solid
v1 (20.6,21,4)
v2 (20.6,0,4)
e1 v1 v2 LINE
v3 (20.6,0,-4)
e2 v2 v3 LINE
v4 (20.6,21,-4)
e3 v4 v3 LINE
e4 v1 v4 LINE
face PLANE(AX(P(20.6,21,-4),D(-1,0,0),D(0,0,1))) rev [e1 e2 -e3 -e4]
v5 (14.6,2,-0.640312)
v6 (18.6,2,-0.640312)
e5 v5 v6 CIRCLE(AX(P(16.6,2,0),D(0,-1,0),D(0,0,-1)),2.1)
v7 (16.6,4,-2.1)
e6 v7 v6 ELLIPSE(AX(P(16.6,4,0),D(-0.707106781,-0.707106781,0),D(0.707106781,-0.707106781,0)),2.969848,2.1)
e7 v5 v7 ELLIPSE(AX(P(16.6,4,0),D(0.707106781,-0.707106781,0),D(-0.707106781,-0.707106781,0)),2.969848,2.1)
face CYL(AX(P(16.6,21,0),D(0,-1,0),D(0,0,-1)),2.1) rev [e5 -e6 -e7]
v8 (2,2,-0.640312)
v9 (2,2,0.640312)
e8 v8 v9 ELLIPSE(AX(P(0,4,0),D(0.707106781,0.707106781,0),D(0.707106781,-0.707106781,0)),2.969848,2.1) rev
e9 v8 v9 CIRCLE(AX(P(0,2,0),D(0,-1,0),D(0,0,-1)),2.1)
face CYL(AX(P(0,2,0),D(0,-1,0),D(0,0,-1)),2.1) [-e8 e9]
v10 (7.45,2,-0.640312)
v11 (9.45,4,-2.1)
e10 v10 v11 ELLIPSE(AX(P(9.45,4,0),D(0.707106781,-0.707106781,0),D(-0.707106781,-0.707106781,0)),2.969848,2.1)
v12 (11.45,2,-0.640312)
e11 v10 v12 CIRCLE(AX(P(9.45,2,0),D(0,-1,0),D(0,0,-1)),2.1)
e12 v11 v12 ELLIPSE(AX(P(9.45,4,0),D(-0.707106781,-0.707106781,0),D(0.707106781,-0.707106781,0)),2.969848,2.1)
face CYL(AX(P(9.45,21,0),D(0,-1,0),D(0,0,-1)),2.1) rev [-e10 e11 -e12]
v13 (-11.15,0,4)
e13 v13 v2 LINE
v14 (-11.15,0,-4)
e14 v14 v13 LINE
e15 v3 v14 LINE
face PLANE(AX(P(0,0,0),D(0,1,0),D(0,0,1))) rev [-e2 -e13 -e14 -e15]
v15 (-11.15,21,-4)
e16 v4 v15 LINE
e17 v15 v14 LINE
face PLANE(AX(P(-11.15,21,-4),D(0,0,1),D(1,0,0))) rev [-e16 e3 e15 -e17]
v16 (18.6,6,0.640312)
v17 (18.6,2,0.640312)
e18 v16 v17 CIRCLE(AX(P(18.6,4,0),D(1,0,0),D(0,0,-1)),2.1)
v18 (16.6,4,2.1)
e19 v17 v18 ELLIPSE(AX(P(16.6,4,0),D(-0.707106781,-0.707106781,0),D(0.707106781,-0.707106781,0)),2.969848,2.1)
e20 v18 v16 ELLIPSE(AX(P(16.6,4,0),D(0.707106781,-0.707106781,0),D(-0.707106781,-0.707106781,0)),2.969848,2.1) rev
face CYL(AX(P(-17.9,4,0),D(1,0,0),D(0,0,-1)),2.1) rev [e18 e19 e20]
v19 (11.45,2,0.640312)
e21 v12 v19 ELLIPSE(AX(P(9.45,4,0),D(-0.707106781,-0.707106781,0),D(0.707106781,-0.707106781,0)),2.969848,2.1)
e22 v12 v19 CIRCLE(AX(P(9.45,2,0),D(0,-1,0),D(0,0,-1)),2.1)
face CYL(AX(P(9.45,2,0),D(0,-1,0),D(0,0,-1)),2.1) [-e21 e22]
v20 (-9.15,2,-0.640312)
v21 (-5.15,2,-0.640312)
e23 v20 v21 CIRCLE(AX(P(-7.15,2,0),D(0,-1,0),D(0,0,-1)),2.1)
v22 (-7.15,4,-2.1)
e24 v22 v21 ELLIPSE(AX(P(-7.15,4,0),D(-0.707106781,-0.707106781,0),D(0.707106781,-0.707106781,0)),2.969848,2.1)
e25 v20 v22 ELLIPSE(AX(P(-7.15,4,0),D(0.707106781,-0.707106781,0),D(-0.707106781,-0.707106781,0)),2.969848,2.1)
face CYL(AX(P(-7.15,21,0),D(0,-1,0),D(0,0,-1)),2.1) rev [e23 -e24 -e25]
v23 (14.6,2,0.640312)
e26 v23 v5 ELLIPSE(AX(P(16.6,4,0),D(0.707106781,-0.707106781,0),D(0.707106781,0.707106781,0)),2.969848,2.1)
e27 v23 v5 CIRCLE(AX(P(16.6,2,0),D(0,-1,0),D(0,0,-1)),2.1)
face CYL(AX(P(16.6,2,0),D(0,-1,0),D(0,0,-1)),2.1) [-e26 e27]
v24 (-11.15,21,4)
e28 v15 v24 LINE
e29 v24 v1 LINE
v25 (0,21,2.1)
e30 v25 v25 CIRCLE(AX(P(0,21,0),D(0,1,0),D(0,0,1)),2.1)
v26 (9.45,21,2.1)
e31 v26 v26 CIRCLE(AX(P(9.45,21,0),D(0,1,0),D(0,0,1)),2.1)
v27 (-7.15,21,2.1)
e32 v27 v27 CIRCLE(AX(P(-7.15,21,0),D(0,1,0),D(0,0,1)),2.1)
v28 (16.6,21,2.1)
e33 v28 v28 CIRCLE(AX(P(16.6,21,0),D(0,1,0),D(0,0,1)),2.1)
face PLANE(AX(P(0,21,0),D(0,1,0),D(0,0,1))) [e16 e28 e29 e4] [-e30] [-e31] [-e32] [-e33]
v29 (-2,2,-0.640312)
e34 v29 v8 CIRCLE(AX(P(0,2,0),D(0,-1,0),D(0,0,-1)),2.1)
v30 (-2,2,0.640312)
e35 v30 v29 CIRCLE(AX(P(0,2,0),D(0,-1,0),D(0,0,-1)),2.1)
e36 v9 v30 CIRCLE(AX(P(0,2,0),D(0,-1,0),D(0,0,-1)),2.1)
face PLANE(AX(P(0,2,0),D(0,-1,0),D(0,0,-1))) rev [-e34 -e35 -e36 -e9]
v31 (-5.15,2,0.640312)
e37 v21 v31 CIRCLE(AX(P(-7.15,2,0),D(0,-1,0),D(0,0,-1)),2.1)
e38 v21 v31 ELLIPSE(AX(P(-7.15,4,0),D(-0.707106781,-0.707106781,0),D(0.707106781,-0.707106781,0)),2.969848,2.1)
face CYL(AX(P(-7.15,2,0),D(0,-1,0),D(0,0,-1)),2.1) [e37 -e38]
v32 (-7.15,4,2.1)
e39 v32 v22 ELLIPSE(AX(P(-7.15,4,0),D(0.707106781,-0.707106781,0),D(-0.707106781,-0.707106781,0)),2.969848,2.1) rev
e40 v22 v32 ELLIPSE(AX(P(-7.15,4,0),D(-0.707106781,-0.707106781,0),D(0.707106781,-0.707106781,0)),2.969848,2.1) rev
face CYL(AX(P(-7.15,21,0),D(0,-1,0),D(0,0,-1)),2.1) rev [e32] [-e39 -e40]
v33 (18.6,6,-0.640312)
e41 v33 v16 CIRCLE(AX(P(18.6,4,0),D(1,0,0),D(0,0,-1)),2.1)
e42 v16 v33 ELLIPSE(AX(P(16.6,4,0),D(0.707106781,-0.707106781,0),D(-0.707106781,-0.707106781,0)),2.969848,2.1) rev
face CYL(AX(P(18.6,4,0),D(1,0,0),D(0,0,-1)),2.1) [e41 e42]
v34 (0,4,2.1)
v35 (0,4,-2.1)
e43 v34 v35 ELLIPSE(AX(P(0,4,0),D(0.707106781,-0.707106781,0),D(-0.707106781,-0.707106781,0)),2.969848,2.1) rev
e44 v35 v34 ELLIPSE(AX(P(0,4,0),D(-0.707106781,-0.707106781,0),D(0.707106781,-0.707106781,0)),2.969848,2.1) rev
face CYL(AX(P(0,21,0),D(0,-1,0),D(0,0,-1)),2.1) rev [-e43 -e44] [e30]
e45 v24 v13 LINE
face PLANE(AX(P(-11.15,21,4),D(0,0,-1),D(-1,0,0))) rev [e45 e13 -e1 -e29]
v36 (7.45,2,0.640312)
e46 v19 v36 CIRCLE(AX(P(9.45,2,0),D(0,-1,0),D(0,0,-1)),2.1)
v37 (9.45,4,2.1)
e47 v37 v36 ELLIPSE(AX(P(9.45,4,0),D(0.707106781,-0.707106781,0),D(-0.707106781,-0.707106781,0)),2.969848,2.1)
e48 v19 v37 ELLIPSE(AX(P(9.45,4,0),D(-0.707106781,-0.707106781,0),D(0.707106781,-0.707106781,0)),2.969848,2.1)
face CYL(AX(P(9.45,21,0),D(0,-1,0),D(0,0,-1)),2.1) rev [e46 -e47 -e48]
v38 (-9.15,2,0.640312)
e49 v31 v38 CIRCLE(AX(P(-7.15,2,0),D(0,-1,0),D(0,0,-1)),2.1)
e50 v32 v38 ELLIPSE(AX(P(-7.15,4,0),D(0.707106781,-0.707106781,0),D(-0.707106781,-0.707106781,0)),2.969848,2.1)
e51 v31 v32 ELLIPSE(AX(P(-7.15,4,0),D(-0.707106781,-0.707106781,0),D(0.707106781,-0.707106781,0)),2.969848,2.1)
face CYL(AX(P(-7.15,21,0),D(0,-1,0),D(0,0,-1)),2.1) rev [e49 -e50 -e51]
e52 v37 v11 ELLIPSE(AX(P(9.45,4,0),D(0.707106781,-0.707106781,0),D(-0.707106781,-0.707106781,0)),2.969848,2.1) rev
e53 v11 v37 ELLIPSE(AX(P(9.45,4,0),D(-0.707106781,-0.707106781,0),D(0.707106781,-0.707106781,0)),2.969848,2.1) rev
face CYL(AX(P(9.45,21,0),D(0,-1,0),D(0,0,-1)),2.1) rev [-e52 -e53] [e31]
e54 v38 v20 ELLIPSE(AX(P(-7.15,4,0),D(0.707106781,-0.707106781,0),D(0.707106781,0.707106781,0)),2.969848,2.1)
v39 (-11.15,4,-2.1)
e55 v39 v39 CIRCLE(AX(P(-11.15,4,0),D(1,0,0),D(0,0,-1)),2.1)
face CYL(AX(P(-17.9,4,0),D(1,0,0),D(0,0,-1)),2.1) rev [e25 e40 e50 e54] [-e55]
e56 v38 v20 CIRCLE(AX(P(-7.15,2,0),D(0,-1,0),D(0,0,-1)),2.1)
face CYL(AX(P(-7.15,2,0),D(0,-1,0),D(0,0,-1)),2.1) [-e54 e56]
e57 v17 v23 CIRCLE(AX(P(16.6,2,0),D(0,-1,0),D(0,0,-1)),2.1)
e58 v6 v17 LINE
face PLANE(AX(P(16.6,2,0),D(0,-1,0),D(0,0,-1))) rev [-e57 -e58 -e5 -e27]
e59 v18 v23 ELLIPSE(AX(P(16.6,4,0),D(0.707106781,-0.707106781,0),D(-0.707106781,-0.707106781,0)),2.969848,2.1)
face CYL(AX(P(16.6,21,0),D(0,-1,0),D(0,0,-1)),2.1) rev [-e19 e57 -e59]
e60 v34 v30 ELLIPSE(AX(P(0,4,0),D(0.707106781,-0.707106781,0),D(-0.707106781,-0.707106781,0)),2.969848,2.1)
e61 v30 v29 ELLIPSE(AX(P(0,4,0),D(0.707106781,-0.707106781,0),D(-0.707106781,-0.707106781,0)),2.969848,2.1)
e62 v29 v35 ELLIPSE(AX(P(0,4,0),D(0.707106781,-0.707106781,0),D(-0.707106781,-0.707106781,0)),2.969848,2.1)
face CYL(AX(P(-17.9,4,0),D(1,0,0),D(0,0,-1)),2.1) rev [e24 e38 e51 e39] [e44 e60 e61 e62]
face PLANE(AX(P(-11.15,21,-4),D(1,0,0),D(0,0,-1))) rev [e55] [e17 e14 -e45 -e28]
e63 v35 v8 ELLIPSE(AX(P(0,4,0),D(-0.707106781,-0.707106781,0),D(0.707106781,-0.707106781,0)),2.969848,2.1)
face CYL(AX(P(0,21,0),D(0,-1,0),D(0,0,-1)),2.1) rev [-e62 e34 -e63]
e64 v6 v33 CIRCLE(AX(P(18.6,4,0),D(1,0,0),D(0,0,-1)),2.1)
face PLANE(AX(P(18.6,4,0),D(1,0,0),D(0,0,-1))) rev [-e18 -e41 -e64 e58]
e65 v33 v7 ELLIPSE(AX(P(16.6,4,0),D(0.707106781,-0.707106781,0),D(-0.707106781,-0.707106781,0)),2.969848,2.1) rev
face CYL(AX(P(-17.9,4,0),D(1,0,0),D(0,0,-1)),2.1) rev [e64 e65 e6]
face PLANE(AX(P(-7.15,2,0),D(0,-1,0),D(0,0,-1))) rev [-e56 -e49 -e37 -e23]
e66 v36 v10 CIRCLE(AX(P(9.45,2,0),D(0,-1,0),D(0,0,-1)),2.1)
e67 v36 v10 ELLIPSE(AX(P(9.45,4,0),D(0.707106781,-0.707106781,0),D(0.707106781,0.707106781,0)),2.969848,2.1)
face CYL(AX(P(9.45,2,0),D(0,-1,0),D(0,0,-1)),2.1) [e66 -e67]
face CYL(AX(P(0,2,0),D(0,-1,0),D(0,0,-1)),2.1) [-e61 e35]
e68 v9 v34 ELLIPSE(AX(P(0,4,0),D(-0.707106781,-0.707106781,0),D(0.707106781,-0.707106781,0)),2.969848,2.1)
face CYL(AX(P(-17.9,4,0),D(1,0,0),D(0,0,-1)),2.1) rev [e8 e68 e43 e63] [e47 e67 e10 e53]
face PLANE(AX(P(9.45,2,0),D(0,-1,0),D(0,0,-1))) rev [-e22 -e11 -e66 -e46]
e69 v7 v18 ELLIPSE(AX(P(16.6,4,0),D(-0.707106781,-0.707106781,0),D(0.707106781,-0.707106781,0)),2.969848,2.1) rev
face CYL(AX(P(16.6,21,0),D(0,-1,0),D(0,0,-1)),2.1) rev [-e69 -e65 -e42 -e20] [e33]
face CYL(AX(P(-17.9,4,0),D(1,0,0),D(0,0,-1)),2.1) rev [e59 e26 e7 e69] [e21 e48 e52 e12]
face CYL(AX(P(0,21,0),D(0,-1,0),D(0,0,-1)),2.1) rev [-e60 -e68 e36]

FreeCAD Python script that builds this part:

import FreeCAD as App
import Part
import Sketcher
from FreeCAD import Vector
Q = App.Units.Quantity


def add_polygon(sketch, points):
    """Adds a closed chain of lines whose ends are joined by coincident constraints."""
    first, n = sketch.GeometryCount, len(points)
    for a, b in zip(points, points[1:] + points[:1]):
        sketch.addGeometry(Part.LineSegment(App.Vector(*a, 0), App.Vector(*b, 0)), False)
    for i in range(n):
        sketch.addConstraint(Sketcher.Constraint("Coincident", first + i, 2, first + (i + 1) % n, 1))

doc = App.newDocument("Part")
body = doc.addObject("PartDesign::Body", "Body")

# Sketch on XZ plane
sketch1 = body.newObject("Sketcher::SketchObject", "Sketch")
sketch1.AttachmentSupport = (doc.getObject("XZ_Plane"), [""])
sketch1.MapMode = "FlatFace"
add_polygon(sketch1, [(-11.2, -4), (-11.2, 4), (20.6, 4), (20.6, -4)])  # lines 0-3
sketch1.addGeometry(Part.Circle(Vector(-7.2, 0, 0), Vector(0, 0, 1), 2.1), False)  # 4
sketch1.addGeometry(Part.Circle(Vector(0, 0, 0), Vector(0, 0, 1), 2.1), False)  # 5
sketch1.addGeometry(Part.Circle(Vector(9.4, 0, 0), Vector(0, 0, 1), 2.1), False)  # 6
sketch1.addGeometry(Part.Circle(Vector(16.6, 0, 0), Vector(0, 0, 1), 2.1), False)  # 7
sketch1.addConstraint(Sketcher.Constraint("Vertical", 0))
sketch1.addConstraint(Sketcher.Constraint("Horizontal", 1))
sketch1.addConstraint(Sketcher.Constraint("Vertical", 2))
sketch1.addConstraint(Sketcher.Constraint("Horizontal", 3))
sketch1.addConstraint(Sketcher.Constraint("Coincident", 5, 3, -1, 1))
sketch1.addConstraint(Sketcher.Constraint("Equal", 4, 5))
sketch1.addConstraint(Sketcher.Constraint("Equal", 5, 6))
sketch1.addConstraint(Sketcher.Constraint("Equal", 6, 7))
sketch1.addConstraint(Sketcher.Constraint("PointOnObject", 4, 3, -1))
sketch1.addConstraint(Sketcher.Constraint("PointOnObject", 6, 3, -1))
sketch1.addConstraint(Sketcher.Constraint("PointOnObject", 7, 3, -1))
sketch1.addConstraint(Sketcher.Constraint("Diameter", 4, Q("4.2 mm")))
sketch1.addConstraint(Sketcher.Constraint("DistanceY", 0, 1, 0, 2, Q("8 mm")))
sketch1.addConstraint(Sketcher.Constraint("DistanceY", -1, 1, 0, 2, Q("4 mm")))
sketch1.addConstraint(Sketcher.Constraint("DistanceX", 0, 2, 4, 3, Q("4 mm")))
sketch1.addConstraint(Sketcher.Constraint("DistanceX", 7, 3, 1, 2, Q("4 mm")))
sketch1.addConstraint(Sketcher.Constraint("DistanceX", 1, 1, 1, 2, Q("31.75 mm")))
sketch1.addConstraint(Sketcher.Constraint("DistanceX", -1, 1, 7, 3, Q("16.6 mm")))
sketch1.addConstraint(Sketcher.Constraint("DistanceX", 4, 3, 6, 3, Q("16.6 mm")))
pad1 = body.newObject("PartDesign::Pad", "Pad")
pad1.Profile = sketch1
pad1.Length = 21
pad1.Reversed = True

# Sketch on YZ plane
sketch2 = body.newObject("Sketcher::SketchObject", "Sketch001")
sketch2.AttachmentSupport = (doc.getObject("YZ_Plane"), [""])
sketch2.MapMode = "FlatFace"
sketch2.AttachmentOffset = App.Placement(Vector(0, 0, 20.6), App.Rotation())
sketch2.addGeometry(Part.Circle(Vector(4, 0, 0), Vector(0, 0, 1), 2.1), False)
sketch2.addConstraint(Sketcher.Constraint("PointOnObject", 0, 3, -1))
sketch2.addConstraint(Sketcher.Constraint("Diameter", 0, Q("4.2 mm")))
sketch2.addConstraint(Sketcher.Constraint("DistanceX", -1, 1, 0, 3, Q("4 mm")))
pocket1 = body.newObject("PartDesign::Pocket", "Pocket")
pocket1.Profile = sketch2
pocket1.Length = 38.5

# Sketch on XZ plane
sketch3 = body.newObject("Sketcher::SketchObject", "Sketch002")
sketch3.AttachmentSupport = (doc.getObject("XZ_Plane"), [""])
sketch3.MapMode = "FlatFace"
sketch3.addGeometry(Part.Circle(Vector(-7.2, 0, 0), Vector(0, 0, 1), 2.1), False)
sketch3.addGeometry(Part.Circle(Vector(0, 0, 0), Vector(0, 0, 1), 2.1), False)
sketch3.addGeometry(Part.Circle(Vector(9.4, 0, 0), Vector(0, 0, 1), 2.1), False)
sketch3.addGeometry(Part.Circle(Vector(16.6, 0, 0), Vector(0, 0, 1), 2.1), False)
sketch3.addConstraint(Sketcher.Constraint("Coincident", 1, 3, -1, 1))
sketch3.addConstraint(Sketcher.Constraint("Equal", 0, 1))
sketch3.addConstraint(Sketcher.Constraint("Equal", 1, 2))
sketch3.addConstraint(Sketcher.Constraint("Equal", 2, 3))
sketch3.addConstraint(Sketcher.Constraint("PointOnObject", 0, 3, -1))
sketch3.addConstraint(Sketcher.Constraint("PointOnObject", 2, 3, -1))
sketch3.addConstraint(Sketcher.Constraint("PointOnObject", 3, 3, -1))
sketch3.addConstraint(Sketcher.Constraint("Diameter", 0, Q("4.2 mm")))
sketch3.addConstraint(Sketcher.Constraint("DistanceX", -1, 1, 3, 3, Q("16.6 mm")))
sketch3.addConstraint(Sketcher.Constraint("DistanceX", 0, 3, 2, 3, Q("16.6 mm")))
sketch3.addConstraint(Sketcher.Constraint("DistanceX", 0, 3, -1, 1, Q("7.15 mm")))
pad2 = body.newObject("PartDesign::Pad", "Pad001")
pad2.Profile = sketch3
pad2.Length = 2
pad2.Reversed = True

# Sketch on YZ plane
sketch4 = body.newObject("Sketcher::SketchObject", "Sketch003")
sketch4.AttachmentSupport = (doc.getObject("YZ_Plane"), [""])
sketch4.MapMode = "FlatFace"
sketch4.AttachmentOffset = App.Placement(Vector(0, 0, 20.6), App.Rotation())
sketch4.addGeometry(Part.Circle(Vector(4, 0, 0), Vector(0, 0, 1), 2.1), False)
sketch4.addConstraint(Sketcher.Constraint("PointOnObject", 0, 3, -1))
sketch4.addConstraint(Sketcher.Constraint("Diameter", 0, Q("4.2 mm")))
sketch4.addConstraint(Sketcher.Constraint("DistanceX", -1, 1, 0, 3, Q("4 mm")))
pad3 = body.newObject("PartDesign::Pad", "Pad002")
pad3.Profile = sketch4
pad3.Length = 2
pad3.Reversed = True

doc.recompute()
